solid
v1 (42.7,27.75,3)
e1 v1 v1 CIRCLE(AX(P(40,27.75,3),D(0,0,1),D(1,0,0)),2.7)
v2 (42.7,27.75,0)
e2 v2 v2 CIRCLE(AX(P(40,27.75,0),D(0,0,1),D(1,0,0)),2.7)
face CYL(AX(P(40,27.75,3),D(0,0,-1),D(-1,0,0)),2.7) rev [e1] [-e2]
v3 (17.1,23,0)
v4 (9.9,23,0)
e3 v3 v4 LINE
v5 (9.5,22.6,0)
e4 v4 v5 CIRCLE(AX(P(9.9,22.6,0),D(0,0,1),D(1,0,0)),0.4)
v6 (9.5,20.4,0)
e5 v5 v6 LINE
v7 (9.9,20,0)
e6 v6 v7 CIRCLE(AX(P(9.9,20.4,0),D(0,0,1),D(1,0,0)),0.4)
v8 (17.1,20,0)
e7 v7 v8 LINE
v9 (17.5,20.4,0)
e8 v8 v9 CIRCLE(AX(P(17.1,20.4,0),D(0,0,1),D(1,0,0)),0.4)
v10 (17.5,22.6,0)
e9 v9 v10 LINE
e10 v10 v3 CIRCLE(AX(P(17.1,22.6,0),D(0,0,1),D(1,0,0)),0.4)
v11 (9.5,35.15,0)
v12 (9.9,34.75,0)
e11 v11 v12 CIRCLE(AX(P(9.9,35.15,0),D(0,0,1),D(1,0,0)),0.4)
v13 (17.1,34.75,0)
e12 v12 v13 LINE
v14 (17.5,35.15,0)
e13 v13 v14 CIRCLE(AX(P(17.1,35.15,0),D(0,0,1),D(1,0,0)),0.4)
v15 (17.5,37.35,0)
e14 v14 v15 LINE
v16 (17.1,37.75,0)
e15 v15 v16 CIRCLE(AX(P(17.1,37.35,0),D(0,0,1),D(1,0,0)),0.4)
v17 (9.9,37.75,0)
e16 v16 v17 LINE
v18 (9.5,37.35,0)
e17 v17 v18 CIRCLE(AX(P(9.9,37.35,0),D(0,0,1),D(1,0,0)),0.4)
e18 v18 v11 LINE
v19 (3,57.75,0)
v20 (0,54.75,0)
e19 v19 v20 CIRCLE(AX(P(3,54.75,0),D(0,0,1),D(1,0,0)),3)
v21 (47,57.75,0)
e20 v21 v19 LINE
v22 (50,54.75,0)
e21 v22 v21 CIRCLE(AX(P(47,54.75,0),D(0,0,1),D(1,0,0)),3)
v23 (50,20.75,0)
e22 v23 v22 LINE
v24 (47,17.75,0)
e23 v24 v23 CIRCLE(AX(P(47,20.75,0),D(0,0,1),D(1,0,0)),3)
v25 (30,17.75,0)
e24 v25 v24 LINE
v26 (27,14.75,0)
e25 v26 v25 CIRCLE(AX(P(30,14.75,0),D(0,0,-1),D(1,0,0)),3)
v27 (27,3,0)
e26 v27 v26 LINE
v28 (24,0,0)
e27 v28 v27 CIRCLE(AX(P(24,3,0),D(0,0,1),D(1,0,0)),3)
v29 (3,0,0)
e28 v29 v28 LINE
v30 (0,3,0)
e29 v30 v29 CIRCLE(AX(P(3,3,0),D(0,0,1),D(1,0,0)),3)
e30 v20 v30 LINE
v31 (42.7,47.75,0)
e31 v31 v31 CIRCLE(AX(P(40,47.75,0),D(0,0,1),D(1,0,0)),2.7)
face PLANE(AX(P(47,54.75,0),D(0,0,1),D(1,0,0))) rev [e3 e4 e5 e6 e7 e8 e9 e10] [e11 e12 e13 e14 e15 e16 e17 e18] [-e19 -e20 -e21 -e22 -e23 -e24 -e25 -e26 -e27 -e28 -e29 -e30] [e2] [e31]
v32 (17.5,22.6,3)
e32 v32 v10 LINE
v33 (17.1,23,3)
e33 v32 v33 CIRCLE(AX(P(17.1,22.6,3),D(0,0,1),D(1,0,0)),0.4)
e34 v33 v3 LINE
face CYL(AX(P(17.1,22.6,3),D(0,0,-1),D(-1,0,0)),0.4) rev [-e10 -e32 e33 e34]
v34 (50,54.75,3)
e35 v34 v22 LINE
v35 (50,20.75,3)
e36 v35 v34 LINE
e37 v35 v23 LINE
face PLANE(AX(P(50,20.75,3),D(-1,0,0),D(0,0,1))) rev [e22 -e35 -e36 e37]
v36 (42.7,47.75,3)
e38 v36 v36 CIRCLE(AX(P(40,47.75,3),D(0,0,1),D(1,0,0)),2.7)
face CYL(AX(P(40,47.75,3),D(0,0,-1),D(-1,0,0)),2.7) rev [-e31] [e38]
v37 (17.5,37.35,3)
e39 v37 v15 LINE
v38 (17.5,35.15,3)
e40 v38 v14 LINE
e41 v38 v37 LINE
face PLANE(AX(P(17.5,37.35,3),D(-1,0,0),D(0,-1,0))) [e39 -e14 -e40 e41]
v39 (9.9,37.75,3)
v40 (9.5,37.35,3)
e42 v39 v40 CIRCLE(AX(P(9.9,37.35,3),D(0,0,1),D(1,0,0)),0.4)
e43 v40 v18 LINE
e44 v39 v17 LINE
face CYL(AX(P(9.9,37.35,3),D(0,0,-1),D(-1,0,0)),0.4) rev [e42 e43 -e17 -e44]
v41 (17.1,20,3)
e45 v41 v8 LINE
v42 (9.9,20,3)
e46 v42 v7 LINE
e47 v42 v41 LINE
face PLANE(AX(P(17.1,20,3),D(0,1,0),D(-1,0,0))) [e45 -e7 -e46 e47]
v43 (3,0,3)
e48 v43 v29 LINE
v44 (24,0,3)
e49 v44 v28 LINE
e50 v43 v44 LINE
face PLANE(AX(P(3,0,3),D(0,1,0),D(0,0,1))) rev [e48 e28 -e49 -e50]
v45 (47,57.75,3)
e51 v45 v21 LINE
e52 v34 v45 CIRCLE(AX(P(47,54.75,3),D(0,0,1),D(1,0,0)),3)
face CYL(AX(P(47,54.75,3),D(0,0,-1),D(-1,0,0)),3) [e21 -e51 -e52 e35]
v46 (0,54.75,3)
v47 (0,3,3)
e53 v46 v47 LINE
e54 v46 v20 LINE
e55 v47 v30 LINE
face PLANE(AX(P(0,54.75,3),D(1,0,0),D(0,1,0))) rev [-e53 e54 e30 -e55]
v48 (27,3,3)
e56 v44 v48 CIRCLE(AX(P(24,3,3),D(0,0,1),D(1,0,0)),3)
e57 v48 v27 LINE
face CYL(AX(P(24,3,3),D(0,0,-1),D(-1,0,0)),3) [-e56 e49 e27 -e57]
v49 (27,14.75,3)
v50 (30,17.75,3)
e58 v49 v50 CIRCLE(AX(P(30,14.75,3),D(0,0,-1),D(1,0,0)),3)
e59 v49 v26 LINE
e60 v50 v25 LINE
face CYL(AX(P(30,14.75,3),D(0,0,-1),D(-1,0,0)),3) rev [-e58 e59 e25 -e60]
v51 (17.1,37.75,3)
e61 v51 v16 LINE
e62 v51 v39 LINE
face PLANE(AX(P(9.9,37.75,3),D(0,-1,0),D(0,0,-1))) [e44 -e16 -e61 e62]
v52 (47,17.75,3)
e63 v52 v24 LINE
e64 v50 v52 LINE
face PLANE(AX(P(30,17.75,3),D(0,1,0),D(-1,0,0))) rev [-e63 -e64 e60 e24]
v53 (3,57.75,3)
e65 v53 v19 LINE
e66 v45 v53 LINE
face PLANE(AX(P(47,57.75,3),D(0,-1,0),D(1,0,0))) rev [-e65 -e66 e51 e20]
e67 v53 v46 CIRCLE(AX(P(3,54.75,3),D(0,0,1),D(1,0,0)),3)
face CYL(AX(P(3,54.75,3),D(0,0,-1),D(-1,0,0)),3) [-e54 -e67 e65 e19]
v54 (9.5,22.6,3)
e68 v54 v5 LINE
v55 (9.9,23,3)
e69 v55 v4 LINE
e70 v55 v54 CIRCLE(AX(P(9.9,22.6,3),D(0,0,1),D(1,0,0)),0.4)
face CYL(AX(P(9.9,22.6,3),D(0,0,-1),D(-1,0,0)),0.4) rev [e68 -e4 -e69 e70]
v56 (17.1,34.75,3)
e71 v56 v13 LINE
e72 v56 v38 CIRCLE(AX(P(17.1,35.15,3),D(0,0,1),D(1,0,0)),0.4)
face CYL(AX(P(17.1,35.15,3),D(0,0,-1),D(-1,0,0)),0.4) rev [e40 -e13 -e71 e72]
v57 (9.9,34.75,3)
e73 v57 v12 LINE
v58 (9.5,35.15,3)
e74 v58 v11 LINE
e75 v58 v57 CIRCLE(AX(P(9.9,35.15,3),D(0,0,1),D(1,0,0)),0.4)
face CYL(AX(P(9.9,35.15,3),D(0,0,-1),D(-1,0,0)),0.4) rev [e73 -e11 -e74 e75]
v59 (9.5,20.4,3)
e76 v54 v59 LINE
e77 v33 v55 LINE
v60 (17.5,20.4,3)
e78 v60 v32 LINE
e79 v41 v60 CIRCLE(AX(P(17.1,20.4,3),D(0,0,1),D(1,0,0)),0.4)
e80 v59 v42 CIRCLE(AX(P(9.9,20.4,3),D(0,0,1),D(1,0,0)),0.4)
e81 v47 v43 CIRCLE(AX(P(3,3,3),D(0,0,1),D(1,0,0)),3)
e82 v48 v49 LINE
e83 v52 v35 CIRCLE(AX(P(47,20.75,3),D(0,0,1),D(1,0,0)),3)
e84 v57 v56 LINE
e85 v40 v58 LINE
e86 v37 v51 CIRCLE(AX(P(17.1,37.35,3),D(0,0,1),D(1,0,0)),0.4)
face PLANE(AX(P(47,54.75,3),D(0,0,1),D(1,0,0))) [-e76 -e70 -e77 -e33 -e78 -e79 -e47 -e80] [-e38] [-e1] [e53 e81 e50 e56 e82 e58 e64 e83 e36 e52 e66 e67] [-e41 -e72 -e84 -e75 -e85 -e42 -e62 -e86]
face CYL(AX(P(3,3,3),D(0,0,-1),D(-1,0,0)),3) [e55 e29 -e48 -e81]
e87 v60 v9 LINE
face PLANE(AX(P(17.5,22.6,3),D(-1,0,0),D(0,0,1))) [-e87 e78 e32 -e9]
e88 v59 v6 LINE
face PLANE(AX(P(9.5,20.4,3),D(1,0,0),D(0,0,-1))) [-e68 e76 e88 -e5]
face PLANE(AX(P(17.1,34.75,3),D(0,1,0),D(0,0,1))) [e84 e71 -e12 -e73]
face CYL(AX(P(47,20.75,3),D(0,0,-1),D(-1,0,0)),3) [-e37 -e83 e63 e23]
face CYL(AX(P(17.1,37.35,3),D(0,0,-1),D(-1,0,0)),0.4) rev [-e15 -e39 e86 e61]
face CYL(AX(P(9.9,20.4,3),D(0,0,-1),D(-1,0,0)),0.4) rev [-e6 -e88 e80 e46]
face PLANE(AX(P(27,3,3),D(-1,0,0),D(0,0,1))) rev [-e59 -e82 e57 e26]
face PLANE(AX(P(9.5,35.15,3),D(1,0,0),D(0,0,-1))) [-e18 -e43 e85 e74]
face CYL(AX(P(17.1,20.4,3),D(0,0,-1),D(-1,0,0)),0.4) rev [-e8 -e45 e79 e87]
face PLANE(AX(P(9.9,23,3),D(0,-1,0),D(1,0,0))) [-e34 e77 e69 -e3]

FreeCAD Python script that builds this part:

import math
import FreeCAD as App
import Part
import Sketcher

V = App.Vector
Q = App.Units.Quantity

doc = App.newDocument("Part")
body = doc.addObject("PartDesign::Body", "Body")

# Sketch on XY plane
sketch1 = body.newObject("Sketcher::SketchObject", "Sketch")
sketch1.AttachmentSupport = (doc.getObject("XY_Plane"), [""])
sketch1.MapMode = "FlatFace"
sketch1.addGeometry([
    Part.LineSegment(V(50, 20.75, 0), V(50, 54.75, 0)),  # 0
    Part.ArcOfCircle(Part.Circle(V(47, 54.75, 0), V(0, 0, 1), 3), math.radians(0), math.radians(90)),  # 1
    Part.LineSegment(V(47, 57.75, 0), V(3, 57.75, 0)),  # 2
    Part.ArcOfCircle(Part.Circle(V(3, 54.75, 0), V(0, 0, 1), 3), math.radians(90), math.radians(180)),  # 3
    Part.LineSegment(V(0, 54.75, 0), V(0, 3, 0)),  # 4
    Part.ArcOfCircle(Part.Circle(V(3, 3, 0), V(0, 0, 1), 3), math.radians(180), math.radians(270)),  # 5
    Part.LineSegment(V(3, 0, 0), V(24, 0, 0)),  # 6
    Part.ArcOfCircle(Part.Circle(V(24, 3, 0), V(0, 0, 1), 3), math.radians(-90), math.radians(0)),  # 7
    Part.LineSegment(V(27, 3, 0), V(27, 14.75, 0)),  # 8
    Part.ArcOfCircle(Part.Circle(V(30, 14.75, 0), V(0, 0, 1), 3), math.radians(90), math.radians(180)),  # 9
    Part.LineSegment(V(30, 17.75, 0), V(47, 17.75, 0)),  # 10
    Part.ArcOfCircle(Part.Circle(V(47, 20.75, 0), V(0, 0, 1), 3), math.radians(-90), math.radians(0)),  # 11
    Part.ArcOfCircle(Part.Circle(V(17.1, 20.4, 0), V(0, 0, 1), 0.4), math.radians(-90), math.radians(0)),  # 12
    Part.LineSegment(V(17.1, 20, 0), V(9.9, 20, 0)),  # 13
    Part.ArcOfCircle(Part.Circle(V(9.9, 20.4, 0), V(0, 0, 1), 0.4), math.radians(180), math.radians(270)),  # 14
    Part.LineSegment(V(9.5, 20.4, 0), V(9.5, 22.6, 0)),  # 15
    Part.ArcOfCircle(Part.Circle(V(9.9, 22.6, 0), V(0, 0, 1), 0.4), math.radians(90), math.radians(180)),  # 16
    Part.LineSegment(V(9.9, 23, 0), V(17.1, 23, 0)),  # 17
    Part.ArcOfCircle(Part.Circle(V(17.1, 22.6, 0), V(0, 0, 1), 0.4), math.radians(0), math.radians(90)),  # 18
    Part.LineSegment(V(17.5, 22.6, 0), V(17.5, 20.4, 0)),  # 19
    Part.Circle(V(40, 27.75, 0), V(0, 0, 1), 2.7),  # 20
    Part.ArcOfCircle(Part.Circle(V(17.1, 35.15, 0), V(0, 0, 1), 0.4), math.radians(-90), math.radians(0)),  # 21
    Part.LineSegment(V(17.1, 34.75, 0), V(9.9, 34.75, 0)),  # 22
    Part.ArcOfCircle(Part.Circle(V(9.9, 35.15, 0), V(0, 0, 1), 0.4), math.radians(-180), math.radians(-90)),  # 23
    Part.LineSegment(V(9.5, 35.15, 0), V(9.5, 37.35, 0)),  # 24
    Part.ArcOfCircle(Part.Circle(V(9.9, 37.35, 0), V(0, 0, 1), 0.4), math.radians(90), math.radians(180)),  # 25
    Part.LineSegment(V(9.9, 37.75, 0), V(17.1, 37.75, 0)),  # 26
    Part.ArcOfCircle(Part.Circle(V(17.1, 37.35, 0), V(0, 0, 1), 0.4), math.radians(0), math.radians(90)),  # 27
    Part.LineSegment(V(17.5, 37.35, 0), V(17.5, 35.15, 0)),  # 28
    Part.Circle(V(40, 47.75, 0), V(0, 0, 1), 2.7),  # 29
], False)
sketch1.addConstraint([
    Sketcher.Constraint("Tangent", 0, 2, 1, 1),
    Sketcher.Constraint("Tangent", 1, 2, 2, 1),
    Sketcher.Constraint("Tangent", 2, 2, 3, 1),
    Sketcher.Constraint("Tangent", 3, 2, 4, 1),
    Sketcher.Constraint("Tangent", 4, 2, 5, 1),
    Sketcher.Constraint("Tangent", 5, 2, 6, 1),
    Sketcher.Constraint("Tangent", 6, 2, 7, 1),
    Sketcher.Constraint("Tangent", 7, 2, 8, 1),
    Sketcher.Constraint("Tangent", 8, 2, 9, 2),
    Sketcher.Constraint("Tangent", 9, 1, 10, 1),
    Sketcher.Constraint("Tangent", 10, 2, 11, 1),
    Sketcher.Constraint("Tangent", 11, 2, 0, 1),
    Sketcher.Constraint("Tangent", 12, 1, 13, 1),
    Sketcher.Constraint("Tangent", 13, 2, 14, 2),
    Sketcher.Constraint("Tangent", 14, 1, 15, 1),
    Sketcher.Constraint("Tangent", 15, 2, 16, 2),
    Sketcher.Constraint("Tangent", 16, 1, 17, 1),
    Sketcher.Constraint("Tangent", 17, 2, 18, 2),
    Sketcher.Constraint("Tangent", 18, 1, 19, 1),
    Sketcher.Constraint("Tangent", 19, 2, 12, 2),
    Sketcher.Constraint("Tangent", 21, 1, 22, 1),
    Sketcher.Constraint("Tangent", 22, 2, 23, 2),
    Sketcher.Constraint("Tangent", 23, 1, 24, 1),
    Sketcher.Constraint("Tangent", 24, 2, 25, 2),
    Sketcher.Constraint("Tangent", 25, 1, 26, 1),
    Sketcher.Constraint("Tangent", 26, 2, 27, 2),
    Sketcher.Constraint("Tangent", 27, 1, 28, 1),
    Sketcher.Constraint("Tangent", 28, 2, 21, 2),
    Sketcher.Constraint("Vertical", 0),
    Sketcher.Constraint("Horizontal", 2),
    Sketcher.Constraint("Vertical", 4),
    Sketcher.Constraint("Horizontal", 6),
    Sketcher.Constraint("Vertical", 8),
    Sketcher.Constraint("Horizontal", 10),
    Sketcher.Constraint("Horizontal", 13),
    Sketcher.Constraint("Vertical", 15),
    Sketcher.Constraint("Horizontal", 17),
    Sketcher.Constraint("Vertical", 19),
    Sketcher.Constraint("Horizontal", 22),
    Sketcher.Constraint("Vertical", 24),
    Sketcher.Constraint("Horizontal", 26),
    Sketcher.Constraint("Vertical", 28),
    Sketcher.Constraint("Equal", 1, 3),
    Sketcher.Constraint("Equal", 3, 5),
    Sketcher.Constraint("Equal", 5, 7),
    Sketcher.Constraint("Equal", 7, 9),
    Sketcher.Constraint("Equal", 9, 11),
    Sketcher.Constraint("Equal", 12, 14),
    Sketcher.Constraint("Equal", 14, 16),
    Sketcher.Constraint("Equal", 16, 18),
    Sketcher.Constraint("Equal", 18, 21),
    Sketcher.Constraint("Equal", 21, 23),
    Sketcher.Constraint("Equal", 23, 25),
    Sketcher.Constraint("Equal", 25, 27),
    Sketcher.Constraint("Equal", 20, 29),
    Sketcher.Constraint("PointOnObject", 3, 2, -2),
    Sketcher.Constraint("PointOnObject", 5, 2, -1),
    Sketcher.Constraint("Vertical", 18, 3, 21, 3),
    Sketcher.Constraint("Vertical", 16, 3, 23, 3),
    Sketcher.Constraint("Vertical", 20, 3, 29, 3),
    Sketcher.Constraint("Equal", 19, 24),
    Sketcher.Constraint("Radius", 1, Q("3 mm")),
    Sketcher.Constraint("Diameter", 20, Q("5.4 mm")),
    Sketcher.Constraint("Radius", 12, Q("0.4 mm")),
    Sketcher.Constraint("DistanceX", 2, 2, 2, 1, Q("44 mm")),
    Sketcher.Constraint("DistanceX", 6, 1, 6, 2, Q("21 mm")),
    Sketcher.Constraint("DistanceY", 0, 1, 0, 2, Q("34 mm")),
    Sketcher.Constraint("DistanceX", 13, 2, 13, 1, Q("7.2 mm")),
    Sketcher.Constraint("DistanceY", 15, 1, 15, 2, Q("2.2 mm")),
    Sketcher.Constraint("DistanceX", -1, 1, 20, 3, Q("40 mm")),
    Sketcher.Constraint("DistanceY", -1, 1, 12, 1, Q("20 mm")),
    Sketcher.Constraint("DistanceY", 11, 3, 20, 3, Q("7 mm")),
    Sketcher.Constraint("DistanceY", 29, 3, 1, 3, Q("7 mm")),
    Sketcher.Constraint("DistanceY", 4, 2, 4, 1, Q("51.75 mm")),
    Sketcher.Constraint("DistanceX", -1, 1, 12, 3, Q("17.1 mm")),
    Sketcher.Constraint("DistanceY", 20, 3, 21, 3, Q("7.4 mm")),
])
pad1 = body.newObject("PartDesign::Pad", "Pad")
pad1.Profile = sketch1
pad1.Length = 3

doc.recompute()
